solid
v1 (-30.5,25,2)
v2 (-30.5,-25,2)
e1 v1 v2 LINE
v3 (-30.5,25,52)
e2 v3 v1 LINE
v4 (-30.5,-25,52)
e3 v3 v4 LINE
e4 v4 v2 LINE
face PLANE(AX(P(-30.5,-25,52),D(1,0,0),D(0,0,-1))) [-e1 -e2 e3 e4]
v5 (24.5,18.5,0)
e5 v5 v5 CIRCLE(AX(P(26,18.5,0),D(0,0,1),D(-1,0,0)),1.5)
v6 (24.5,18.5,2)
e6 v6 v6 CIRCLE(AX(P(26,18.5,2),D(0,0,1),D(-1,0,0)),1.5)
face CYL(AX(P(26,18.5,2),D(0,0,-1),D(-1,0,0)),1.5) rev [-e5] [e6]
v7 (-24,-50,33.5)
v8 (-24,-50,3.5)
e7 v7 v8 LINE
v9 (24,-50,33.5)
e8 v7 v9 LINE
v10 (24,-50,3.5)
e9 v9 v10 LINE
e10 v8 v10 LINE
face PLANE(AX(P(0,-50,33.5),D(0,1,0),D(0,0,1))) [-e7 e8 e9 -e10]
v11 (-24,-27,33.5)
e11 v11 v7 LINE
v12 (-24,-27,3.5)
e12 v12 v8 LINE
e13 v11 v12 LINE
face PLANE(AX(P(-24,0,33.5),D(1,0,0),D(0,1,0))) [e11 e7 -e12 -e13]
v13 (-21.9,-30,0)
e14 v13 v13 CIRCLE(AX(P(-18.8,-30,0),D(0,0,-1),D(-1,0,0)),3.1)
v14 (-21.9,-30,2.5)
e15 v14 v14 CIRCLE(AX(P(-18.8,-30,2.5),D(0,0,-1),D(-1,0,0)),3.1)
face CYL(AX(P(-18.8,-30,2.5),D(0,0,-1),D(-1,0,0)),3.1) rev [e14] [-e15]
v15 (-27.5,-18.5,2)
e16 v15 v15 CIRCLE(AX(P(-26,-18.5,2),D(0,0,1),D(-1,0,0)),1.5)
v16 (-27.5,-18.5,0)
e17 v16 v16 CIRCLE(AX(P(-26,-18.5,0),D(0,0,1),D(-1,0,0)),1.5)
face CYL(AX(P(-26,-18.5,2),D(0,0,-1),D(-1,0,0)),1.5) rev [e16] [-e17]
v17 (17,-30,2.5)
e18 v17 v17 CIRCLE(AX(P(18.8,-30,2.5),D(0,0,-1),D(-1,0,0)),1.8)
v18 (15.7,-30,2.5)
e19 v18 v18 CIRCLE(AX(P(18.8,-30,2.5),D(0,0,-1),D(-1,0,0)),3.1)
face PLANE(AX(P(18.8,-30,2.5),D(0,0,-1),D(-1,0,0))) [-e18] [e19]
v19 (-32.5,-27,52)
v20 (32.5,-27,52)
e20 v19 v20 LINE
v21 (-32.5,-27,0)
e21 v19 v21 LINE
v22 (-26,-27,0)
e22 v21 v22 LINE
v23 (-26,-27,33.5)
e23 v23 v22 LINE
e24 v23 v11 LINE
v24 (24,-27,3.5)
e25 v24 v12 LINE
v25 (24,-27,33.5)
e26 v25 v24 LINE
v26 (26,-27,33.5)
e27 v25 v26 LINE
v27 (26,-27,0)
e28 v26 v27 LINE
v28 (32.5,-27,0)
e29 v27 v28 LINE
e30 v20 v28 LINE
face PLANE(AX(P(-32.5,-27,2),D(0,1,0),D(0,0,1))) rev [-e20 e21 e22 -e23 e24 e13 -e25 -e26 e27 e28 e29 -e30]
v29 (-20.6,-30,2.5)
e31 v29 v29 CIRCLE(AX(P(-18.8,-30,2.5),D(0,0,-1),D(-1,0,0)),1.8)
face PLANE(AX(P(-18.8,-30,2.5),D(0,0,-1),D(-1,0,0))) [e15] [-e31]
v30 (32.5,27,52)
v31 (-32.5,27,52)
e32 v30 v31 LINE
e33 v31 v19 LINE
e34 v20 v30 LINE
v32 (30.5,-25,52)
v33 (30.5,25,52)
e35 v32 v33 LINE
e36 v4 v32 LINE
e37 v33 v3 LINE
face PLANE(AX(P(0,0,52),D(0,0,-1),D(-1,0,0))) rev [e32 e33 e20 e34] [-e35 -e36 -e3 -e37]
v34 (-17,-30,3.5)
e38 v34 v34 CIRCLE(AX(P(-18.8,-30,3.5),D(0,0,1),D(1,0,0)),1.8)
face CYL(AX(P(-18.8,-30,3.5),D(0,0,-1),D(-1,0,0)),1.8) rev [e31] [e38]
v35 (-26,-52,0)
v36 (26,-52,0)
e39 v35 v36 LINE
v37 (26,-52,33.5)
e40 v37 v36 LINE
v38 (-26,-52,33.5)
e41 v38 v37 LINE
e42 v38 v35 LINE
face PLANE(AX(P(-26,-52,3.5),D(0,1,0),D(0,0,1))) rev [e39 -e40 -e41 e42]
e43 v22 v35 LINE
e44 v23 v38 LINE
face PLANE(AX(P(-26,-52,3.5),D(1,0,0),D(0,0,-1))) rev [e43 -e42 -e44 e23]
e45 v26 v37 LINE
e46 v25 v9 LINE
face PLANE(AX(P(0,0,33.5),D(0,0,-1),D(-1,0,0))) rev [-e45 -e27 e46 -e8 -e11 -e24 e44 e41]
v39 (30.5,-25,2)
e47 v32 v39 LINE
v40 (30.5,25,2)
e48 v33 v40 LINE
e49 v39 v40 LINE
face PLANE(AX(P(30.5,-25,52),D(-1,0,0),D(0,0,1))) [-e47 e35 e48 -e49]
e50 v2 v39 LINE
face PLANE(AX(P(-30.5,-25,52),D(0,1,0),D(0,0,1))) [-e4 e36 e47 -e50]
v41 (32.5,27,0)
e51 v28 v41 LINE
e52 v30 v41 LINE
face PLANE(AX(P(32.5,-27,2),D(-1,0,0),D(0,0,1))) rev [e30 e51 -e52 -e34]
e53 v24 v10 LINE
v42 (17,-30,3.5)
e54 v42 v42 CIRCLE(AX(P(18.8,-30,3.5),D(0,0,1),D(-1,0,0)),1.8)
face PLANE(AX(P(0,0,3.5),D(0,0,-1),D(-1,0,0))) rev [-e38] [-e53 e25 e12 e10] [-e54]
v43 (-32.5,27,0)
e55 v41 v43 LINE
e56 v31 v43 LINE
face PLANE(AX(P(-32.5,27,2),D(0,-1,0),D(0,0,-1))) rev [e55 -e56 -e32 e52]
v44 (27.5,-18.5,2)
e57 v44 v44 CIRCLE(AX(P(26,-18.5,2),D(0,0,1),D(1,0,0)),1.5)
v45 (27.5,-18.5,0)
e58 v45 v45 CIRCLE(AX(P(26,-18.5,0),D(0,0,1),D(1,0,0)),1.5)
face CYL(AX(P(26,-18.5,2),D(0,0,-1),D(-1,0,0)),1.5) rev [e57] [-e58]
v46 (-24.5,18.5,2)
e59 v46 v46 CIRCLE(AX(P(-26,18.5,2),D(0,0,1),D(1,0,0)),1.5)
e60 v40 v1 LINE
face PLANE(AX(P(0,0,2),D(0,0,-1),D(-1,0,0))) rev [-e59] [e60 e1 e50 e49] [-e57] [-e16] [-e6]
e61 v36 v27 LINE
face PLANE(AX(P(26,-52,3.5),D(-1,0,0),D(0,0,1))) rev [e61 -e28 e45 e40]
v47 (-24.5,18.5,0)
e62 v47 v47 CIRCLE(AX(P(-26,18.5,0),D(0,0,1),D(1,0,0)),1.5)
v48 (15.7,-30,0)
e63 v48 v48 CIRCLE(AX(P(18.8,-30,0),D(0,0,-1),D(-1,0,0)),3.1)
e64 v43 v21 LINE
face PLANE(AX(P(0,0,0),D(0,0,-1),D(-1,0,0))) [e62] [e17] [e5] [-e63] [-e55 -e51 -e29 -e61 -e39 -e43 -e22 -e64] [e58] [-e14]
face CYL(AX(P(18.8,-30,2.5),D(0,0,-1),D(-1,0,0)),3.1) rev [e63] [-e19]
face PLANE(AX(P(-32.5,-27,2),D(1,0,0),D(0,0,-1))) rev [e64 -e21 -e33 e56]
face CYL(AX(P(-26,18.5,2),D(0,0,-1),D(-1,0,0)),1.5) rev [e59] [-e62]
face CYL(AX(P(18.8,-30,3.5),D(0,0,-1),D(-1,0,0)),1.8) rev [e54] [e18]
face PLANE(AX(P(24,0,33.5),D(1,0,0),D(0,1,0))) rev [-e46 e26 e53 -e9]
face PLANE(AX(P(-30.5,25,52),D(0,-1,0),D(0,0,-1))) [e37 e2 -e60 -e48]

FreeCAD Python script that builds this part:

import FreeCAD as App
import Part
import Sketcher

V = App.Vector

doc = App.newDocument("Part")
body = doc.addObject("PartDesign::Body", "Body")

# Sketch on XY plane
sketch1 = doc.addObject("Sketcher::SketchObject", "Sketch")
body.addObject(sketch1)
sketch1.AttachmentSupport = (doc.XY_Plane, [""])
sketch1.MapMode = "FlatFace"
sketch1.addGeometry([
    Part.LineSegment(V(-32.5, 27, 0), V(-32.5, -27, 0)),  # 0
    Part.LineSegment(V(-32.5, -27, 0), V(32.5, -27, 0)),  # 1
    Part.LineSegment(V(32.5, -27, 0), V(32.5, 27, 0)),  # 2
    Part.LineSegment(V(32.5, 27, 0), V(-32.5, 27, 0)),  # 3
    Part.Circle(V(-26, -18.5, 0), V(0, 0, 1), 1.5),  # 4
    Part.Circle(V(26, -18.5, 0), V(0, 0, 1), 1.5),  # 5
    Part.Circle(V(-26, 18.5, 0), V(0, 0, 1), 1.5),  # 6
    Part.Circle(V(26, 18.5, 0), V(0, 0, 1), 1.5),  # 7
], False)
sketch1.addConstraint([
    Sketcher.Constraint("Coincident", 0, 2, 1, 1),
    Sketcher.Constraint("Coincident", 1, 2, 2, 1),
    Sketcher.Constraint("Coincident", 2, 2, 3, 1),
    Sketcher.Constraint("Coincident", 3, 2, 0, 1),
    Sketcher.Constraint("Vertical", 0),
    Sketcher.Constraint("Horizontal", 1),
    Sketcher.Constraint("Vertical", 2),
    Sketcher.Constraint("Horizontal", 3),
    Sketcher.Constraint("Equal", 4, 5),
    Sketcher.Constraint("Equal", 5, 6),
    Sketcher.Constraint("Equal", 6, 7),
    Sketcher.Constraint("Symmetric", 5, 3, 6, 3, -1, 1),
    Sketcher.Constraint("Symmetric", 4, 3, 7, 3, -1, 1),
    Sketcher.Constraint("Symmetric", 0, 2, 2, 2, -1, 1),
    Sketcher.Constraint("Symmetric", 4, 3, 5, 3, -2),
    Sketcher.Constraint("Diameter", 4, 3.0),
    Sketcher.Constraint("DistanceX", 1, 1, 1, 2, 65.0),
    Sketcher.Constraint("DistanceY", 0, 2, 0, 1, 54.0),
    Sketcher.Constraint("DistanceX", 4, 3, -1, 1, 26.0),
    Sketcher.Constraint("DistanceY", 4, 3, 6, 3, 37.0),
])
pad1 = doc.addObject("PartDesign::Pad", "Pad")
body.addObject(pad1)
pad1.Profile = sketch1
pad1.Length = 2

# Sketch on XY plane
sketch2 = doc.addObject("Sketcher::SketchObject", "Sketch001")
body.addObject(sketch2)
sketch2.AttachmentSupport = (doc.XY_Plane, [""])
sketch2.MapMode = "FlatFace"
sketch2.AttachmentOffset = App.Placement(V(0, 0, 2), App.Rotation())
sketch2.addGeometry([
    Part.LineSegment(V(-32, 27, 0), V(-32, -27, 0)),  # 0
    Part.LineSegment(V(-32, -27, 0), V(32, -27, 0)),  # 1
    Part.LineSegment(V(32, -27, 0), V(32, 27, 0)),  # 2
    Part.LineSegment(V(32, 27, 0), V(-32, 27, 0)),  # 3
    Part.LineSegment(V(30, -25, 0), V(-30, -25, 0)),  # 4
    Part.LineSegment(V(-30, -25, 0), V(-30, 25, 0)),  # 5
    Part.LineSegment(V(-30, 25, 0), V(30, 25, 0)),  # 6
    Part.LineSegment(V(30, 25, 0), V(30, -25, 0)),  # 7
], False)
sketch2.addConstraint([
    Sketcher.Constraint("Coincident", 0, 2, 1, 1),
    Sketcher.Constraint("Coincident", 1, 2, 2, 1),
    Sketcher.Constraint("Coincident", 2, 2, 3, 1),
    Sketcher.Constraint("Coincident", 3, 2, 0, 1),
    Sketcher.Constraint("Coincident", 4, 2, 5, 1),
    Sketcher.Constraint("Coincident", 5, 2, 6, 1),
    Sketcher.Constraint("Coincident", 6, 2, 7, 1),
    Sketcher.Constraint("Coincident", 7, 2, 4, 1),
    Sketcher.Constraint("Vertical", 0),
    Sketcher.Constraint("Horizontal", 1),
    Sketcher.Constraint("Vertical", 2),
    Sketcher.Constraint("Horizontal", 3),
    Sketcher.Constraint("Horizontal", 4),
    Sketcher.Constraint("Vertical", 5),
    Sketcher.Constraint("Horizontal", 6),
    Sketcher.Constraint("Vertical", 7),
    Sketcher.Constraint("Symmetric", 0, 2, 2, 2, -1, 1),
    Sketcher.Constraint("Symmetric", 4, 2, 6, 2, -1, 1),
    Sketcher.Constraint("DistanceX", 1, 1, 1, 2, 65.0),
    Sketcher.Constraint("DistanceX", 4, 2, 4, 1, 61.0),
    Sketcher.Constraint("DistanceY", 0, 2, 0, 1, 54.0),
    Sketcher.Constraint("DistanceY", 5, 1, 5, 2, 50.0),
])
pad2 = doc.addObject("PartDesign::Pad", "Pad001")
body.addObject(pad2)
pad2.Profile = sketch2
pad2.Length = 50

# Sketch on XY plane
sketch3 = doc.addObject("Sketcher::SketchObject", "Sketch002")
body.addObject(sketch3)
sketch3.AttachmentSupport = (doc.XY_Plane, [""])
sketch3.MapMode = "FlatFace"
sketch3.addGeometry([
    Part.LineSegment(V(-26, -27, 0), V(-26, -52, 0)),  # 0
    Part.LineSegment(V(-26, -52, 0), V(26, -52, 0)),  # 1
    Part.LineSegment(V(26, -52, 0), V(26, -27, 0)),  # 2
    Part.LineSegment(V(26, -27, 0), V(-26, -27, 0)),  # 3
    Part.Circle(V(-18.8, -30, 0), V(0, 0, 1), 1.8),  # 4
    Part.Circle(V(18.8, -30, 0), V(0, 0, 1), 1.8),  # 5
], False)
sketch3.addConstraint([
    Sketcher.Constraint("Coincident", 0, 2, 1, 1),
    Sketcher.Constraint("Coincident", 1, 2, 2, 1),
    Sketcher.Constraint("Coincident", 2, 2, 3, 1),
    Sketcher.Constraint("Coincident", 3, 2, 0, 1),
    Sketcher.Constraint("Vertical", 0),
    Sketcher.Constraint("Horizontal", 1),
    Sketcher.Constraint("Vertical", 2),
    Sketcher.Constraint("Horizontal", 3),
    Sketcher.Constraint("Equal", 4, 5),
    Sketcher.Constraint("Symmetric", 4, 3, 5, 3, -2),
    Sketcher.Constraint("Diameter", 4, 3.6),
    Sketcher.Constraint("DistanceX", 1, 1, 1, 2, 52.0),
    Sketcher.Constraint("DistanceY", 0, 2, 0, 1, 25.0),
    Sketcher.Constraint("DistanceY", 4, 3, -1, 1, 30.0),
    Sketcher.Constraint("DistanceX", 0, 2, -1, 1, 26.0),
    Sketcher.Constraint("DistanceY", 0, 2, -1, 1, 52.0),
    Sketcher.Constraint("DistanceX", 4, 3, -1, 1, 18.8),
])
pad3 = doc.addObject("PartDesign::Pad", "Pad002")
body.addObject(pad3)
pad3.Profile = sketch3
pad3.Length = 3.5

# Sketch on XY plane
sketch4 = doc.addObject("Sketcher::SketchObject", "Sketch003")
body.addObject(sketch4)
sketch4.AttachmentSupport = (doc.XY_Plane, [""])
sketch4.MapMode = "FlatFace"
sketch4.AttachmentOffset = App.Placement(V(0, 0, 3.5), App.Rotation())
sketch4.addGeometry([
    Part.LineSegment(V(-24, -27, 0), V(-26, -27, 0)),  # 0
    Part.LineSegment(V(-26, -27, 0), V(-26, -52, 0)),  # 1
    Part.LineSegment(V(-26, -52, 0), V(26, -52, 0)),  # 2
    Part.LineSegment(V(26, -52, 0), V(26, -27, 0)),  # 3
    Part.LineSegment(V(26, -27, 0), V(24, -27, 0)),  # 4
    Part.LineSegment(V(24, -27, 0), V(24, -50, 0)),  # 5
    Part.LineSegment(V(24, -50, 0), V(-24, -50, 0)),  # 6
    Part.LineSegment(V(-24, -50, 0), V(-24, -27, 0)),  # 7
], False)
sketch4.addConstraint([
    Sketcher.Constraint("Coincident", 0, 2, 1, 1),
    Sketcher.Constraint("Coincident", 1, 2, 2, 1),
    Sketcher.Constraint("Coincident", 2, 2, 3, 1),
    Sketcher.Constraint("Coincident", 3, 2, 4, 1),
    Sketcher.Constraint("Coincident", 4, 2, 5, 1),
    Sketcher.Constraint("Coincident", 5, 2, 6, 1),
    Sketcher.Constraint("Coincident", 6, 2, 7, 1),
    Sketcher.Constraint("Coincident", 7, 2, 0, 1),
    Sketcher.Constraint("Horizontal", 0),
    Sketcher.Constraint("Vertical", 1),
    Sketcher.Constraint("Horizontal", 2),
    Sketcher.Constraint("Vertical", 3),
    Sketcher.Constraint("Horizontal", 4),
    Sketcher.Constraint("Vertical", 5),
    Sketcher.Constraint("Horizontal", 6),
    Sketcher.Constraint("Vertical", 7),
    Sketcher.Constraint("Symmetric", 0, 2, 3, 2, -2),
    Sketcher.Constraint("Equal", 0, 4),
    Sketcher.Constraint("DistanceX", 0, 2, 0, 1, 2.0),
    Sketcher.Constraint("DistanceX", 2, 1, 2, 2, 52.0),
    Sketcher.Constraint("DistanceY", 1, 2, 1, 1, 25.0),
    Sketcher.Constraint("DistanceY", 5, 2, 5, 1, 23.0),
    Sketcher.Constraint("DistanceY", 0, 2, -1, 1, 27.0),
])
pad4 = doc.addObject("PartDesign::Pad", "Pad003")
body.addObject(pad4)
pad4.Profile = sketch4
pad4.Length = 30

# Sketch on XY plane
sketch5 = doc.addObject("Sketcher::SketchObject", "Sketch004")
body.addObject(sketch5)
sketch5.AttachmentSupport = (doc.XY_Plane, [""])
sketch5.MapMode = "FlatFace"
sketch5.addGeometry([
    Part.Circle(V(18.8, -30, 0), V(0, 0, 1), 3.1),
    Part.Circle(V(-18.8, -30, 0), V(0, 0, 1), 3.1),
], False)
sketch5.addConstraint([
    Sketcher.Constraint("Equal", 0, 1),
    Sketcher.Constraint("Symmetric", 0, 3, 1, 3, -2),
    Sketcher.Constraint("Diameter", 0, 6.2),
    Sketcher.Constraint("DistanceY", 0, 3, -1, 1, 30.0),
    Sketcher.Constraint("DistanceX", -1, 1, 0, 3, 18.8),
])
pocket1 = doc.addObject("PartDesign::Pocket", "Pocket")
body.addObject(pocket1)
pocket1.Profile = sketch5
pocket1.Length = 2.5
pocket1.Reversed = True

doc.recompute()
